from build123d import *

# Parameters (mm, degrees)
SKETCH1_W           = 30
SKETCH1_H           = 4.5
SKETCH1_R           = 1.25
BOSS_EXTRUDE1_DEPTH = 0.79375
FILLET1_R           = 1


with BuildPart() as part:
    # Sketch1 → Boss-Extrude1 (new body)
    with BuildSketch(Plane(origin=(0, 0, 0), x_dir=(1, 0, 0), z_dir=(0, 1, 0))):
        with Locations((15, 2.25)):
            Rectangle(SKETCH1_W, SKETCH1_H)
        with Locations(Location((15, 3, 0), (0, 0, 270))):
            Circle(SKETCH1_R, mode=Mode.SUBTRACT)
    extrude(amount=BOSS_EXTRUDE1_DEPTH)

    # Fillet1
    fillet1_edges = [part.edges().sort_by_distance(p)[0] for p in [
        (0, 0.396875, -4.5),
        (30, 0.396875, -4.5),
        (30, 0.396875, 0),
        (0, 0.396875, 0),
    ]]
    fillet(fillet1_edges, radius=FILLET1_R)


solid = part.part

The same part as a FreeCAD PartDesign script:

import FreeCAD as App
import Part
import Sketcher
from FreeCAD import Vector
Q = App.Units.Quantity


def edges_at(feature, points):
    """Names of the edges that pass closest to the given points."""
    edges = feature.Shape.Edges
    near = lambda p: min(range(len(edges)), key=lambda i: edges[i].distToShape(Part.Vertex(*p))[0])
    return sorted({f"Edge{near(p) + 1}" for p in points})

doc = App.newDocument("Part")
params = doc.addObject("Spreadsheet::Sheet", "Params")
for row, (alias, value) in enumerate([
    ("sketch1_diameter", "2.5 mm"),
    ("sketch1_width", "30 mm"),
    ("sketch1_height", "4.5 mm"),
    ("pad1_length", "0.79375 mm"),
    ("fillet_radius", "1 mm"),
], start=1):
    params.set(f"A{row}", alias)
    params.set(f"B{row}", "=" + value)
    params.setAlias(f"B{row}", alias)

body = doc.addObject("PartDesign::Body", "Body")

# Sketch on XZ plane
sketch1 = body.newObject("Sketcher::SketchObject", "Sketch")
sketch1.AttachmentSupport = (doc.getObject("XZ_Plane"), [""])
sketch1.MapMode = "FlatFace"
sketch1.addGeometry([
    Part.LineSegment(Vector(0, -4.5, 0), Vector(0, 0, 0)),  # 0
    Part.LineSegment(Vector(0, 0, 0), Vector(30, 0, 0)),  # 1
    Part.LineSegment(Vector(30, 0, 0), Vector(30, -4.5, 0)),  # 2
    Part.LineSegment(Vector(30, -4.5, 0), Vector(0, -4.5, 0)),  # 3
    Part.Circle(Vector(15, -3, 0), Vector(0, 0, 1), 1.2),  # 4
], False)
sketch1.addConstraint([
    Sketcher.Constraint("Coincident", 0, 2, 1, 1),
    Sketcher.Constraint("Coincident", 1, 2, 2, 1),
    Sketcher.Constraint("Coincident", 2, 2, 3, 1),
    Sketcher.Constraint("Coincident", 3, 2, 0, 1),
    Sketcher.Constraint("Vertical", 0),
    Sketcher.Constraint("Horizontal", 1),
    Sketcher.Constraint("Vertical", 2),
    Sketcher.Constraint("Horizontal", 3),
    Sketcher.Constraint("Coincident", 0, 2, -1, 1),
    Sketcher.Constraint("Diameter", 4, Q("2.5 mm")),
    Sketcher.Constraint("DistanceX", 1, 1, 1, 2, Q("30 mm")),
    Sketcher.Constraint("DistanceY", 0, 1, 0, 2, Q("4.5 mm")),
    Sketcher.Constraint("DistanceX", -1, 1, 4, 3, Q("15 mm")),
    Sketcher.Constraint("DistanceY", 4, 3, -1, 1, Q("3 mm")),
])
sketch1.setExpression("Constraints[9]", "Params.sketch1_diameter")
sketch1.setExpression("Constraints[10]", "Params.sketch1_width")
sketch1.setExpression("Constraints[11]", "Params.sketch1_height")
pad1 = body.newObject("PartDesign::Pad", "Pad")
pad1.Profile = sketch1
pad1.setExpression("Length", "Params.pad1_length")
pad1.Reversed = True
doc.recompute()

fillet = body.newObject("PartDesign::Fillet", "Fillet")
fillet.Base = (pad1, edges_at(pad1, [
    (0, 0.397, -4.5),
    (30, 0.397, -4.5),
    (30, 0.397, 0),
    (0, 0.397, 0),
]))
fillet.setExpression("Radius", "Params.fillet_radius")

doc.recompute()
